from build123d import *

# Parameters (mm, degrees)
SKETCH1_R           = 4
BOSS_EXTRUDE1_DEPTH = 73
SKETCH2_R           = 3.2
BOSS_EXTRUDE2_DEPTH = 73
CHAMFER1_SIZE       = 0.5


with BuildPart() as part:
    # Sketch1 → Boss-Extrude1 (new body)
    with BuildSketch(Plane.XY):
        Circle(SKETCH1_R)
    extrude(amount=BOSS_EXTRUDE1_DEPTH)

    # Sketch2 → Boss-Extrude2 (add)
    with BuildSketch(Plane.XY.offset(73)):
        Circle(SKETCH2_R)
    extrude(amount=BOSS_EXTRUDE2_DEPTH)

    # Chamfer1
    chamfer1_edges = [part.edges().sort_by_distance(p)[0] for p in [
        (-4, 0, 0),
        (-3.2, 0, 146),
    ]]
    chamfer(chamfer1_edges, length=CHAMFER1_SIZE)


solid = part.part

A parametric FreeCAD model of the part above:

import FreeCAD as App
import Part
import Sketcher


def edges_at(feature, points):
    """Names of the edges that pass closest to the given points."""
    edges = feature.Shape.Edges
    near = lambda p: min(range(len(edges)), key=lambda i: edges[i].distToShape(Part.Vertex(*p))[0])
    return sorted({f"Edge{near(p) + 1}" for p in points})

doc = App.newDocument("Part")
body = doc.addObject("PartDesign::Body", "Body")

sketch1 = body.newObject("Sketcher::SketchObject", "Sketch")
sketch1.AttachmentSupport = (doc.getObject("XY_Plane"), [""])
sketch1.MapMode = "FlatFace"
sketch1.addGeometry(Part.Circle(App.Vector(0, 0, 0), App.Vector(0, 0, 1), 4), False)
sketch1.addConstraint([
    Sketcher.Constraint("Coincident", 0, 3, -1, 1),
    Sketcher.Constraint("Diameter", 0, 8.0),
])
pad1 = body.newObject("PartDesign::Pad", "Pad")
pad1.Profile = sketch1
pad1.Length = 73

sketch2 = body.newObject("Sketcher::SketchObject", "Sketch001")
sketch2.AttachmentSupport = (doc.getObject("XY_Plane"), [""])
sketch2.MapMode = "FlatFace"
sketch2.AttachmentOffset = App.Placement(App.Vector(0, 0, 73), App.Rotation())
sketch2.addGeometry(Part.Circle(App.Vector(0, 0, 0), App.Vector(0, 0, 1), 3.2), False)
sketch2.addConstraint([
    Sketcher.Constraint("Coincident", 0, 3, -1, 1),
    Sketcher.Constraint("Diameter", 0, 6.4),
])
pad2 = body.newObject("PartDesign::Pad", "Pad001")
pad2.Profile = sketch2
pad2.Length = 73
doc.recompute()

chamfer = body.newObject("PartDesign::Chamfer", "Chamfer")
chamfer.Base = (pad2, edges_at(pad2, [(-4, 0, 0), (-3.2, 0, 146)]))
chamfer.Size = 0.5

doc.recompute()
